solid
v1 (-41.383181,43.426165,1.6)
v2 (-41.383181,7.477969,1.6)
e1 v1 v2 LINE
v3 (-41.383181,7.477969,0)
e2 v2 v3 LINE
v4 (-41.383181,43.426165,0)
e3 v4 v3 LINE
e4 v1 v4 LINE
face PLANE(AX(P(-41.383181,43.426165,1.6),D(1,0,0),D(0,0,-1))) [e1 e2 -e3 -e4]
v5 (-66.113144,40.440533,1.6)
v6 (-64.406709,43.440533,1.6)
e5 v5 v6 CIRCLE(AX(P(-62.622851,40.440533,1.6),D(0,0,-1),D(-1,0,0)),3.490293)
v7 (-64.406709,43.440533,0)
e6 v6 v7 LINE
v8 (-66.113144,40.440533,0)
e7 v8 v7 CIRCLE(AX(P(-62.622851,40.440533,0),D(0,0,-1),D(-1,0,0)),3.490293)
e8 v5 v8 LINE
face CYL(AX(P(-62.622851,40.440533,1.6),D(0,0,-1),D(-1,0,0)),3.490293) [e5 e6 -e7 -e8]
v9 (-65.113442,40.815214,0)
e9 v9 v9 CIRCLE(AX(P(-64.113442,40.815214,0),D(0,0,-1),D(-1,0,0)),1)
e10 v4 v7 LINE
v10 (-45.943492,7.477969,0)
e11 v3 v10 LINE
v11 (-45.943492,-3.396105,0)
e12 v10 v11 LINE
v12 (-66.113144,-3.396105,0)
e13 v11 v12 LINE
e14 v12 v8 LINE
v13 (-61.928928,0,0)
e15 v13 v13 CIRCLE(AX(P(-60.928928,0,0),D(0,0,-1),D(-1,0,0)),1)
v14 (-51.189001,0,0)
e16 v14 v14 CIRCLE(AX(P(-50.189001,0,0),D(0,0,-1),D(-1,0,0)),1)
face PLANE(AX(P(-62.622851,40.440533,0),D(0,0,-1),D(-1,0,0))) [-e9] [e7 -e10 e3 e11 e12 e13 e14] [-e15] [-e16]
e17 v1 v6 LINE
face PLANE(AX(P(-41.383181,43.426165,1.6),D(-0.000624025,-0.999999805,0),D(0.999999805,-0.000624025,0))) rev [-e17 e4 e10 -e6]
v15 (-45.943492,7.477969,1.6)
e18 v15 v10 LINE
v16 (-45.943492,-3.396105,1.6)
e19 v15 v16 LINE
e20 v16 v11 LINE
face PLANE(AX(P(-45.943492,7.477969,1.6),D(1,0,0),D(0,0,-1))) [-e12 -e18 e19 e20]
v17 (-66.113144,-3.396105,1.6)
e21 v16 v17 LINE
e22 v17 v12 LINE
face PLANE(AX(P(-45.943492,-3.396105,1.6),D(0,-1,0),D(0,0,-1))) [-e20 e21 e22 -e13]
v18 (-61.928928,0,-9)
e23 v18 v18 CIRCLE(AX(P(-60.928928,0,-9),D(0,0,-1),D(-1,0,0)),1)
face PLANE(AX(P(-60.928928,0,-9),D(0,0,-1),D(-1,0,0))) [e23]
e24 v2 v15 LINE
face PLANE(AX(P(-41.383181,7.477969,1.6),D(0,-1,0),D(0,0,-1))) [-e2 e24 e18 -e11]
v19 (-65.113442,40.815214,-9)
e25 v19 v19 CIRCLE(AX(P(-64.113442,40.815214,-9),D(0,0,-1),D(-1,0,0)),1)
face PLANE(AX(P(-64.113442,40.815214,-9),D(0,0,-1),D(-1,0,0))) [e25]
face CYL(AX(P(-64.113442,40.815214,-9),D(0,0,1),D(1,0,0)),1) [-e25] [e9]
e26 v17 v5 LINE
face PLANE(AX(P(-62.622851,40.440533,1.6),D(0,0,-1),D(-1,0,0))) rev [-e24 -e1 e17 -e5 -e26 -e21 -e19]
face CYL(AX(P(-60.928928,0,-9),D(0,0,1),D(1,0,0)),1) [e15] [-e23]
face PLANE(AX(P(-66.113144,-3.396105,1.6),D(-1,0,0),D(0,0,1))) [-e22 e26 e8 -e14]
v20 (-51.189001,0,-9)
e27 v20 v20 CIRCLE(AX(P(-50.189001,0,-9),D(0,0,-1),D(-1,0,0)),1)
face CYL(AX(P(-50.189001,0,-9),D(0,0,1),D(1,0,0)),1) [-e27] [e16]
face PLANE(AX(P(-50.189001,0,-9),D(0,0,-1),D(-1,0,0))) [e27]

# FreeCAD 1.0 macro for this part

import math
import FreeCAD as App
import Part
import Sketcher
from FreeCAD import Vector

doc = App.newDocument("Part")
params = doc.addObject("Spreadsheet::Sheet", "Params")
for row, (alias, value) in enumerate([
    ("pad1_length", "1.6 mm"),
    ("sketch2_diameter", "2 mm"),
    ("pad2_length", "9 mm"),
], start=1):
    params.set(f"A{row}", alias)
    params.set(f"B{row}", "=" + value)
    params.setAlias(f"B{row}", alias)

body = doc.addObject("PartDesign::Body", "Body")

# Sketch on XY plane
sketch1 = body.newObject("Sketcher::SketchObject", "Sketch")
sketch1.AttachmentSupport = (doc.getObject("XY_Plane"), [""])
sketch1.MapMode = "FlatFace"
sketch1.addGeometry(Part.LineSegment(Vector(-41.4, 7.5, 0), Vector(-41.4, 43.4, 0)), False)
sketch1.addGeometry(Part.LineSegment(Vector(-41.4, 43.4, 0), Vector(-64.4, 43.4, 0)), False)
sketch1.addGeometry(Part.ArcOfCircle(Part.Circle(Vector(-62.6, 40.4, 0), Vector(0, 0, 1), 3.5), math.radians(121), math.radians(180)), False)
sketch1.addGeometry(Part.LineSegment(Vector(-66.1, 40.4, 0), Vector(-66.1, -3.4, 0)), False)
sketch1.addGeometry(Part.LineSegment(Vector(-66.1, -3.4, 0), Vector(-45.9, -3.4, 0)), False)
sketch1.addGeometry(Part.LineSegment(Vector(-45.9, -3.4, 0), Vector(-45.9, 7.5, 0)), False)
sketch1.addGeometry(Part.LineSegment(Vector(-45.9, 7.5, 0), Vector(-41.4, 7.5, 0)), False)
sketch1.addConstraint(Sketcher.Constraint("Coincident", 0, 2, 1, 1))
sketch1.addConstraint(Sketcher.Constraint("Coincident", 1, 2, 2, 1))
sketch1.addConstraint(Sketcher.Constraint("Tangent", 2, 2, 3, 1))
sketch1.addConstraint(Sketcher.Constraint("Coincident", 3, 2, 4, 1))
sketch1.addConstraint(Sketcher.Constraint("Coincident", 4, 2, 5, 1))
sketch1.addConstraint(Sketcher.Constraint("Coincident", 5, 2, 6, 1))
sketch1.addConstraint(Sketcher.Constraint("Coincident", 6, 2, 0, 1))
sketch1.addConstraint(Sketcher.Constraint("Vertical", 0))
sketch1.addConstraint(Sketcher.Constraint("Vertical", 3))
sketch1.addConstraint(Sketcher.Constraint("Horizontal", 4))
sketch1.addConstraint(Sketcher.Constraint("Vertical", 5))
sketch1.addConstraint(Sketcher.Constraint("Horizontal", 6))
sketch1.addConstraint(Sketcher.Constraint("DistanceY", 2, 3, 1, 2, 2.999999))
sketch1.addConstraint(Sketcher.Constraint("Radius", 2, 3.490293))
sketch1.addConstraint(Sketcher.Constraint("DistanceX", 6, 1, 6, 2, 4.56031))
sketch1.addConstraint(Sketcher.Constraint("DistanceX", 4, 1, 4, 2, 20.169652))
sketch1.addConstraint(Sketcher.Constraint("DistanceY", 0, 1, 0, 2, 35.948196))
sketch1.addConstraint(Sketcher.Constraint("DistanceY", 3, 2, 3, 1, 43.836638))
sketch1.addConstraint(Sketcher.Constraint("DistanceY", 5, 1, 5, 2, 10.874073))
sketch1.addConstraint(Sketcher.Constraint("DistanceX", 2, 3, -1, 1, 62.622851))
sketch1.addConstraint(Sketcher.Constraint("DistanceY", -1, 1, 5, 2, 7.477969))
pad1 = body.newObject("PartDesign::Pad", "Pad")
pad1.Profile = sketch1
pad1.setExpression("Length", "Params.pad1_length")

# Sketch on XY plane
sketch2 = body.newObject("Sketcher::SketchObject", "Sketch001")
sketch2.AttachmentSupport = (doc.getObject("XY_Plane"), [""])
sketch2.MapMode = "FlatFace"
sketch2.addGeometry(Part.Circle(Vector(-50.2, 0, 0), Vector(0, 0, 1), 1), False)
sketch2.addGeometry(Part.Circle(Vector(-60.9, 0, 0), Vector(0, 0, 1), 1), False)
sketch2.addGeometry(Part.Circle(Vector(-64.1, 40.8, 0), Vector(0, 0, 1), 1), False)
sketch2.addConstraint(Sketcher.Constraint("Equal", 0, 1))
sketch2.addConstraint(Sketcher.Constraint("Equal", 1, 2))
sketch2.addConstraint(Sketcher.Constraint("PointOnObject", 0, 3, -1))
sketch2.addConstraint(Sketcher.Constraint("PointOnObject", 1, 3, -1))
sketch2.addConstraint(Sketcher.Constraint("Diameter", 0, 2.0))
sketch2.addConstraint(Sketcher.Constraint("DistanceX", 0, 3, -1, 1, 50.189001))
sketch2.addConstraint(Sketcher.Constraint("DistanceX", 1, 3, -1, 1, 60.928928))
sketch2.addConstraint(Sketcher.Constraint("DistanceX", 2, 3, -1, 1, 64.113442))
sketch2.addConstraint(Sketcher.Constraint("DistanceY", -1, 1, 2, 3, 40.815214))
sketch2.setExpression("Constraints[4]", "Params.sketch2_diameter")
pad2 = body.newObject("PartDesign::Pad", "Pad001")
pad2.Profile = sketch2
pad2.setExpression("Length", "Params.pad2_length")
pad2.Reversed = True

doc.recompute()
